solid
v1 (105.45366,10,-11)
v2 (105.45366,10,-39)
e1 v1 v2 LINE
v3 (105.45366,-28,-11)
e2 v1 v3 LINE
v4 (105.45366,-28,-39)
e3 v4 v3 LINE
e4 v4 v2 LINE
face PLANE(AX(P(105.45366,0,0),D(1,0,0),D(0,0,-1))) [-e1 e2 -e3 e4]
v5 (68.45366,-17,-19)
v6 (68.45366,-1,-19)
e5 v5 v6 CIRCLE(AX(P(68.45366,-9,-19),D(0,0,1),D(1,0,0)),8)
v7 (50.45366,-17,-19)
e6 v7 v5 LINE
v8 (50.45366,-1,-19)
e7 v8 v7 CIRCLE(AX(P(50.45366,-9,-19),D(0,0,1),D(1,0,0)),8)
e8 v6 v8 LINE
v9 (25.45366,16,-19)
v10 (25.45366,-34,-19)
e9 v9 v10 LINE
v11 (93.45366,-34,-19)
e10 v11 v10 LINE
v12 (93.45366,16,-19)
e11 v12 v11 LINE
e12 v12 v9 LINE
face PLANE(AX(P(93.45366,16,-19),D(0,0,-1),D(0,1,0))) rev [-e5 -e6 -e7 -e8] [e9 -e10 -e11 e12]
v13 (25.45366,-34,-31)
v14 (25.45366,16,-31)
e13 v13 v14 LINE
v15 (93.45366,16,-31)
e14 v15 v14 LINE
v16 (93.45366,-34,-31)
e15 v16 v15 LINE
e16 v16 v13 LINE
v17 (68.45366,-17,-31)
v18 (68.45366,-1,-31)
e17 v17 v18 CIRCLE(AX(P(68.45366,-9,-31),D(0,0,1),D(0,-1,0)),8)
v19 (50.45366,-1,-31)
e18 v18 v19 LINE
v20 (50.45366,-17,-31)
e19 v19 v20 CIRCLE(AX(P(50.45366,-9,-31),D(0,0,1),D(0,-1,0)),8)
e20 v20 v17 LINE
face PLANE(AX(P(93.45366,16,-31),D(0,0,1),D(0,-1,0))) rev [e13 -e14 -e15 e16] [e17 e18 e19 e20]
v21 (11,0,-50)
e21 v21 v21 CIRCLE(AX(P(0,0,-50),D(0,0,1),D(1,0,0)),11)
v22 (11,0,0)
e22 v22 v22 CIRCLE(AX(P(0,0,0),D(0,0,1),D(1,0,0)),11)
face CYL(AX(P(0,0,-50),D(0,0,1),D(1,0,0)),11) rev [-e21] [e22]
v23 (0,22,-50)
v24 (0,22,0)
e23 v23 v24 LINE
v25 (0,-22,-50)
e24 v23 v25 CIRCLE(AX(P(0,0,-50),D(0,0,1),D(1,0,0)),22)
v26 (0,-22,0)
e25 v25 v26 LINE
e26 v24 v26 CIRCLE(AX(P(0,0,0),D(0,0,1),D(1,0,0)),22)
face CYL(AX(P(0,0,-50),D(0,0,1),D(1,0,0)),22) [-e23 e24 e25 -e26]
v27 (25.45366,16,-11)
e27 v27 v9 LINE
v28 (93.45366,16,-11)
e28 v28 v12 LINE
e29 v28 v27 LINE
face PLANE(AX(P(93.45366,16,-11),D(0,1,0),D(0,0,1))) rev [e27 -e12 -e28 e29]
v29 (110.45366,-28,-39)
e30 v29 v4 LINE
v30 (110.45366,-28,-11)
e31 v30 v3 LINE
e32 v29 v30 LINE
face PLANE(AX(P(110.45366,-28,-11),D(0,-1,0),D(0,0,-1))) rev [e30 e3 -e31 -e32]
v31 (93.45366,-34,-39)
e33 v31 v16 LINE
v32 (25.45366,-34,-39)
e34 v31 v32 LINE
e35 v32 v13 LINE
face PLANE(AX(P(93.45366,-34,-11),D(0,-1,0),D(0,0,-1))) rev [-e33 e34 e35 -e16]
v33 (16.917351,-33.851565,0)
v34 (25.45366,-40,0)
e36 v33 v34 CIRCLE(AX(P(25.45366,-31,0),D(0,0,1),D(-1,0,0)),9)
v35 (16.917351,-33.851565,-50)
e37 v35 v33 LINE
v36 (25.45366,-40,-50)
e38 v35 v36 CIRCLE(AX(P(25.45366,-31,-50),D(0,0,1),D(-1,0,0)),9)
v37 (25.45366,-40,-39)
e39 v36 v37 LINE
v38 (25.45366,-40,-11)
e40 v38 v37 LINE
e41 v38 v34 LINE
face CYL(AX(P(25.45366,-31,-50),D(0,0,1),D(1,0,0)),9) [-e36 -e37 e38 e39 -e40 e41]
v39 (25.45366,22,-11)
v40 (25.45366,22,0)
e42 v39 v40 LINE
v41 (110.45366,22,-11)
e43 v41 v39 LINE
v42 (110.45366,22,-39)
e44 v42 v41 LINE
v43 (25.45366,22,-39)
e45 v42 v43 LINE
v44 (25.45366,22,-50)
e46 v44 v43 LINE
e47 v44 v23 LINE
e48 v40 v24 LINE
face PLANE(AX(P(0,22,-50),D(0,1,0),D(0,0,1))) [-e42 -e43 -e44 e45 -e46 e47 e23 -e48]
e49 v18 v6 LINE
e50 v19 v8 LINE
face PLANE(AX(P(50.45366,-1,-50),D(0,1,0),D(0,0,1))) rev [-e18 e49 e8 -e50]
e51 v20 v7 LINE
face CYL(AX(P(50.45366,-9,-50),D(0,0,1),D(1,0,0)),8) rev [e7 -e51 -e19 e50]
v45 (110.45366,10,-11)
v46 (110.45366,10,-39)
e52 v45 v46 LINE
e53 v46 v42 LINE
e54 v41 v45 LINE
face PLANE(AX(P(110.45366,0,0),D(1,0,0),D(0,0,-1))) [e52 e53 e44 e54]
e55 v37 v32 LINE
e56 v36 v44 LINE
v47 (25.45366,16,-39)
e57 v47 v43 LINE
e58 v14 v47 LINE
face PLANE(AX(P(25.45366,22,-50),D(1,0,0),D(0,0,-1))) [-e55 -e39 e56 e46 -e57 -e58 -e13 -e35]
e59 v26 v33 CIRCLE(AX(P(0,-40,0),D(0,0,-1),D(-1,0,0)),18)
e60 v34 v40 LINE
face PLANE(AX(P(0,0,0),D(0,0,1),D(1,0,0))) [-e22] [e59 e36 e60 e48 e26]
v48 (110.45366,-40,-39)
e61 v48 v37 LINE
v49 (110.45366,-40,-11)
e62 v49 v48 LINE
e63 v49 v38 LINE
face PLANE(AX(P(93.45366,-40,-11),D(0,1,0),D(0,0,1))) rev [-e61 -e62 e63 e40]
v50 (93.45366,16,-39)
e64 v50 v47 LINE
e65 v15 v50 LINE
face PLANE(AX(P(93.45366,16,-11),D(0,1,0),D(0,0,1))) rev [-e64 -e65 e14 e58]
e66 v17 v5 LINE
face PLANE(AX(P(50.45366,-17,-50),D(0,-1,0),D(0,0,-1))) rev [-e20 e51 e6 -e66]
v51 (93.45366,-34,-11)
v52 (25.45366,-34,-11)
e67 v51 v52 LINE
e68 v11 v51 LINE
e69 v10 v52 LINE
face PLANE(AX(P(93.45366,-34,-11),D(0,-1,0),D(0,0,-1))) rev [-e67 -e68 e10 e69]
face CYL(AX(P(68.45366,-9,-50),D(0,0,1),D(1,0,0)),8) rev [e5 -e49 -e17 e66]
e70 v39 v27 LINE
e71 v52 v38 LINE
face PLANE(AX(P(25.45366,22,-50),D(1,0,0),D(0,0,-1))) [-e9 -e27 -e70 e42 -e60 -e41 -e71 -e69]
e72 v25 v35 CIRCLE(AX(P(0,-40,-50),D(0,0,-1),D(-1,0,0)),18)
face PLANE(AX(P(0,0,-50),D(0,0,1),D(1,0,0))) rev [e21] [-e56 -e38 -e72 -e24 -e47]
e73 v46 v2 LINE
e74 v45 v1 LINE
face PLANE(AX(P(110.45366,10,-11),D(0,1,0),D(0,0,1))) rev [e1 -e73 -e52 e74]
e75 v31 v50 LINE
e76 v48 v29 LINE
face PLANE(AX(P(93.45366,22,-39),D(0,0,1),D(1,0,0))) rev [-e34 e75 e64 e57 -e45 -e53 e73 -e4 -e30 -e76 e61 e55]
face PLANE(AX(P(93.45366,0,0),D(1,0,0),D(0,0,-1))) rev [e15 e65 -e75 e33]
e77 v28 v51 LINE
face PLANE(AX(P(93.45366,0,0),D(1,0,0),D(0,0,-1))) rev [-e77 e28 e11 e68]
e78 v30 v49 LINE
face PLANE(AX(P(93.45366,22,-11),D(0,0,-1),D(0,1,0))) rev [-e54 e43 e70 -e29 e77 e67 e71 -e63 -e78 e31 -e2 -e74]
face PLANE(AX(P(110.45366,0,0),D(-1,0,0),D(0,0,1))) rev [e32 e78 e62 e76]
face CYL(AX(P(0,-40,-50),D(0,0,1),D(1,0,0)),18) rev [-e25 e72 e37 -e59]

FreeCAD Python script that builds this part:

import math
import FreeCAD as App
import Part
import Sketcher

V = App.Vector

doc = App.newDocument("Part")
body = doc.addObject("PartDesign::Body", "Body")

# Sketch on XY plane
sketch1 = doc.addObject("Sketcher::SketchObject", "Sketch")
body.addObject(sketch1)
sketch1.AttachmentSupport = (doc.XY_Plane, [""])
sketch1.MapMode = "FlatFace"
sketch1.addGeometry([
    Part.LineSegment(V(25, 22, 0), V(0, 22, 0)),  # 0
    Part.ArcOfCircle(Part.Circle(V(0, 0, 0), V(0, 0, 1), 22), math.radians(90), math.radians(270)),  # 1
    Part.ArcOfCircle(Part.Circle(V(0, -40, 0), V(0, 0, 1), 18), math.radians(20), math.radians(90)),  # 2
    Part.ArcOfCircle(Part.Circle(V(25, -31, 0), V(0, 0, 1), 9), math.radians(-162), math.radians(-90)),  # 3
    Part.LineSegment(V(25, -40, 0), V(25, 22, 0)),  # 4
    Part.Circle(V(0, 0, 0), V(0, 0, 1), 11),  # 5
], False)
sketch1.addConstraint([
    Sketcher.Constraint("Tangent", 0, 2, 1, 1),
    Sketcher.Constraint("Tangent", 1, 2, 2, 2),
    Sketcher.Constraint("Coincident", 2, 1, 3, 1),
    Sketcher.Constraint("Coincident", 3, 2, 4, 1),
    Sketcher.Constraint("Coincident", 4, 2, 0, 1),
    Sketcher.Constraint("Horizontal", 0),
    Sketcher.Constraint("Vertical", 4),
    Sketcher.Constraint("Coincident", 1, 3, -1, 1),
    Sketcher.Constraint("Coincident", 5, 3, -1, 1),
    Sketcher.Constraint("PointOnObject", 2, 3, -2),
    Sketcher.Constraint("Horizontal", 2, 3, 3, 2),
    Sketcher.Constraint("Diameter", 5, 22.0),
    Sketcher.Constraint("Radius", 1, 22.0),
    Sketcher.Constraint("Radius", 2, 18.0),
    Sketcher.Constraint("Radius", 3, 9.0),
    Sketcher.Constraint("DistanceX", 0, 2, 0, 1, 25.45366),
    Sketcher.Constraint("DistanceX", -1, 1, 3, 3, 25.45366),
])
pad1 = doc.addObject("PartDesign::Pad", "Pad")
body.addObject(pad1)
pad1.Profile = sketch1
pad1.Length = 50
pad1.Reversed = True

# Sketch on YZ plane
sketch2 = doc.addObject("Sketcher::SketchObject", "Sketch001")
body.addObject(sketch2)
sketch2.AttachmentSupport = (doc.YZ_Plane, [""])
sketch2.MapMode = "FlatFace"
sketch2.AttachmentOffset = App.Placement(V(0, 0, 25.45366), App.Rotation())
sketch2.addGeometry([
    Part.LineSegment(V(22, -11, 0), V(16, -11, 0)),  # 0
    Part.LineSegment(V(16, -11, 0), V(16, -39, 0)),  # 1
    Part.LineSegment(V(16, -39, 0), V(22, -39, 0)),  # 2
    Part.LineSegment(V(22, -39, 0), V(22, -11, 0)),  # 3
    Part.LineSegment(V(-34, -11, 0), V(-40, -11, 0)),  # 4
    Part.LineSegment(V(-40, -11, 0), V(-40, -39, 0)),  # 5
    Part.LineSegment(V(-40, -39, 0), V(-34, -39, 0)),  # 6
    Part.LineSegment(V(-34, -39, 0), V(-34, -11, 0)),  # 7
], False)
sketch2.addConstraint([
    Sketcher.Constraint("Coincident", 0, 2, 1, 1),
    Sketcher.Constraint("Coincident", 1, 2, 2, 1),
    Sketcher.Constraint("Coincident", 2, 2, 3, 1),
    Sketcher.Constraint("Coincident", 3, 2, 0, 1),
    Sketcher.Constraint("Coincident", 4, 2, 5, 1),
    Sketcher.Constraint("Coincident", 5, 2, 6, 1),
    Sketcher.Constraint("Coincident", 6, 2, 7, 1),
    Sketcher.Constraint("Coincident", 7, 2, 4, 1),
    Sketcher.Constraint("Horizontal", 0),
    Sketcher.Constraint("Vertical", 1),
    Sketcher.Constraint("Horizontal", 2),
    Sketcher.Constraint("Vertical", 3),
    Sketcher.Constraint("Horizontal", 4),
    Sketcher.Constraint("Vertical", 5),
    Sketcher.Constraint("Horizontal", 6),
    Sketcher.Constraint("Vertical", 7),
    Sketcher.Constraint("Horizontal", 3, 2, 4, 2),
    Sketcher.Constraint("Horizontal", 2, 2, 5, 2),
    Sketcher.Constraint("Equal", 2, 4),
    Sketcher.Constraint("DistanceX", 0, 2, 0, 1, 6.0),
    Sketcher.Constraint("DistanceY", 1, 2, 1, 1, 28.0),
    Sketcher.Constraint("DistanceX", -1, 1, 0, 2, 16.0),
    Sketcher.Constraint("DistanceY", 0, 2, -1, 1, 11.0),
    Sketcher.Constraint("DistanceX", 4, 2, -1, 1, 40.0),
])
pad2 = doc.addObject("PartDesign::Pad", "Pad001")
body.addObject(pad2)
pad2.Profile = sketch2
pad2.Length = 68

# Sketch on YZ plane
sketch3 = doc.addObject("Sketcher::SketchObject", "Sketch002")
body.addObject(sketch3)
sketch3.AttachmentSupport = (doc.YZ_Plane, [""])
sketch3.MapMode = "FlatFace"
sketch3.AttachmentOffset = App.Placement(V(0, 0, 25.45366), App.Rotation())
sketch3.addGeometry([
    Part.LineSegment(V(16, -19, 0), V(-34, -19, 0)),
    Part.LineSegment(V(-34, -19, 0), V(-34, -31, 0)),
    Part.LineSegment(V(-34, -31, 0), V(16, -31, 0)),
    Part.LineSegment(V(16, -31, 0), V(16, -19, 0)),
], False)
sketch3.addConstraint([
    Sketcher.Constraint("Coincident", 0, 2, 1, 1),
    Sketcher.Constraint("Coincident", 1, 2, 2, 1),
    Sketcher.Constraint("Coincident", 2, 2, 3, 1),
    Sketcher.Constraint("Coincident", 3, 2, 0, 1),
    Sketcher.Constraint("Horizontal", 0),
    Sketcher.Constraint("Vertical", 1),
    Sketcher.Constraint("Horizontal", 2),
    Sketcher.Constraint("Vertical", 3),
    Sketcher.Constraint("DistanceX", 0, 2, 0, 1, 50.0),
    Sketcher.Constraint("DistanceY", 1, 2, 1, 1, 12.0),
    Sketcher.Constraint("DistanceX", 0, 2, -1, 1, 34.0),
    Sketcher.Constraint("DistanceY", 0, 2, -1, 1, 19.0),
])
pad3 = doc.addObject("PartDesign::Pad", "Pad002")
body.addObject(pad3)
pad3.Profile = sketch3
pad3.Length = 68

# Sketch on YZ plane
sketch4 = doc.addObject("Sketcher::SketchObject", "Sketch003")
body.addObject(sketch4)
sketch4.AttachmentSupport = (doc.YZ_Plane, [""])
sketch4.MapMode = "FlatFace"
sketch4.AttachmentOffset = App.Placement(V(0, 0, 93.45366), App.Rotation())
sketch4.addGeometry([
    Part.LineSegment(V(22, -11, 0), V(-40, -11, 0)),
    Part.LineSegment(V(-40, -11, 0), V(-40, -39, 0)),
    Part.LineSegment(V(-40, -39, 0), V(22, -39, 0)),
    Part.LineSegment(V(22, -39, 0), V(22, -11, 0)),
], False)
sketch4.addConstraint([
    Sketcher.Constraint("Coincident", 0, 2, 1, 1),
    Sketcher.Constraint("Coincident", 1, 2, 2, 1),
    Sketcher.Constraint("Coincident", 2, 2, 3, 1),
    Sketcher.Constraint("Coincident", 3, 2, 0, 1),
    Sketcher.Constraint("Horizontal", 0),
    Sketcher.Constraint("Vertical", 1),
    Sketcher.Constraint("Horizontal", 2),
    Sketcher.Constraint("Vertical", 3),
    Sketcher.Constraint("DistanceX", 0, 2, 0, 1, 62.0),
    Sketcher.Constraint("DistanceY", 1, 2, 1, 1, 28.0),
    Sketcher.Constraint("DistanceX", 0, 2, -1, 1, 40.0),
    Sketcher.Constraint("DistanceY", 0, 2, -1, 1, 11.0),
])
pad4 = doc.addObject("PartDesign::Pad", "Pad003")
body.addObject(pad4)
pad4.Profile = sketch4
pad4.Length = 12

# Sketch on YZ plane
sketch5 = doc.addObject("Sketcher::SketchObject", "Sketch004")
body.addObject(sketch5)
sketch5.AttachmentSupport = (doc.YZ_Plane, [""])
sketch5.MapMode = "FlatFace"
sketch5.AttachmentOffset = App.Placement(V(0, 0, 105.45366), App.Rotation())
sketch5.addGeometry([
    Part.LineSegment(V(22, -11, 0), V(10, -11, 0)),  # 0
    Part.LineSegment(V(10, -11, 0), V(10, -39, 0)),  # 1
    Part.LineSegment(V(10, -39, 0), V(22, -39, 0)),  # 2
    Part.LineSegment(V(22, -39, 0), V(22, -11, 0)),  # 3
    Part.LineSegment(V(-28, -11, 0), V(-40, -11, 0)),  # 4
    Part.LineSegment(V(-40, -11, 0), V(-40, -39, 0)),  # 5
    Part.LineSegment(V(-40, -39, 0), V(-28, -39, 0)),  # 6
    Part.LineSegment(V(-28, -39, 0), V(-28, -11, 0)),  # 7
], False)
sketch5.addConstraint([
    Sketcher.Constraint("Coincident", 0, 2, 1, 1),
    Sketcher.Constraint("Coincident", 1, 2, 2, 1),
    Sketcher.Constraint("Coincident", 2, 2, 3, 1),
    Sketcher.Constraint("Coincident", 3, 2, 0, 1),
    Sketcher.Constraint("Coincident", 4, 2, 5, 1),
    Sketcher.Constraint("Coincident", 5, 2, 6, 1),
    Sketcher.Constraint("Coincident", 6, 2, 7, 1),
    Sketcher.Constraint("Coincident", 7, 2, 4, 1),
    Sketcher.Constraint("Horizontal", 0),
    Sketcher.Constraint("Vertical", 1),
    Sketcher.Constraint("Horizontal", 2),
    Sketcher.Constraint("Vertical", 3),
    Sketcher.Constraint("Horizontal", 4),
    Sketcher.Constraint("Vertical", 5),
    Sketcher.Constraint("Horizontal", 6),
    Sketcher.Constraint("Vertical", 7),
    Sketcher.Constraint("Horizontal", 3, 2, 4, 2),
    Sketcher.Constraint("Horizontal", 2, 2, 5, 2),
    Sketcher.Constraint("Equal", 2, 4),
    Sketcher.Constraint("DistanceX", 0, 2, 0, 1, 12.0),
    Sketcher.Constraint("DistanceY", 1, 2, 1, 1, 28.0),
    Sketcher.Constraint("DistanceX", -1, 1, 0, 2, 10.0),
    Sketcher.Constraint("DistanceY", 0, 2, -1, 1, 11.0),
    Sketcher.Constraint("DistanceX", 4, 2, -1, 1, 40.0),
])
pad5 = doc.addObject("PartDesign::Pad", "Pad004")
body.addObject(pad5)
pad5.Profile = sketch5
pad5.Length = 5

# Sketch on XY plane
sketch6 = doc.addObject("Sketcher::SketchObject", "Sketch005")
body.addObject(sketch6)
sketch6.AttachmentSupport = (doc.XY_Plane, [""])
sketch6.MapMode = "FlatFace"
sketch6.AttachmentOffset = App.Placement(V(0, 0, -19), App.Rotation())
sketch6.addGeometry([
    Part.LineSegment(V(68, -1, 0), V(50, -1, 0)),
    Part.ArcOfCircle(Part.Circle(V(50, -9, 0), V(0, 0, 1), 8), math.radians(90), math.radians(270)),
    Part.LineSegment(V(50, -17, 0), V(68, -17, 0)),
    Part.ArcOfCircle(Part.Circle(V(68, -9, 0), V(0, 0, 1), 8), math.radians(-90), math.radians(90)),
], False)
sketch6.addConstraint([
    Sketcher.Constraint("Tangent", 0, 2, 1, 1),
    Sketcher.Constraint("Tangent", 1, 2, 2, 1),
    Sketcher.Constraint("Tangent", 2, 2, 3, 1),
    Sketcher.Constraint("Tangent", 3, 2, 0, 1),
    Sketcher.Constraint("Horizontal", 0),
    Sketcher.Constraint("Horizontal", 2),
    Sketcher.Constraint("Radius", 1, 8.0),
    Sketcher.Constraint("DistanceX", 0, 2, 0, 1, 18.0),
    Sketcher.Constraint("DistanceY", 1, 3, -1, 1, 9.0),
    Sketcher.Constraint("DistanceX", -1, 1, 1, 3, 50.45366),
])
pocket1 = doc.addObject("PartDesign::Pocket", "Pocket")
body.addObject(pocket1)
pocket1.Profile = sketch6
pocket1.Type = "ThroughAll"

doc.recompute()
